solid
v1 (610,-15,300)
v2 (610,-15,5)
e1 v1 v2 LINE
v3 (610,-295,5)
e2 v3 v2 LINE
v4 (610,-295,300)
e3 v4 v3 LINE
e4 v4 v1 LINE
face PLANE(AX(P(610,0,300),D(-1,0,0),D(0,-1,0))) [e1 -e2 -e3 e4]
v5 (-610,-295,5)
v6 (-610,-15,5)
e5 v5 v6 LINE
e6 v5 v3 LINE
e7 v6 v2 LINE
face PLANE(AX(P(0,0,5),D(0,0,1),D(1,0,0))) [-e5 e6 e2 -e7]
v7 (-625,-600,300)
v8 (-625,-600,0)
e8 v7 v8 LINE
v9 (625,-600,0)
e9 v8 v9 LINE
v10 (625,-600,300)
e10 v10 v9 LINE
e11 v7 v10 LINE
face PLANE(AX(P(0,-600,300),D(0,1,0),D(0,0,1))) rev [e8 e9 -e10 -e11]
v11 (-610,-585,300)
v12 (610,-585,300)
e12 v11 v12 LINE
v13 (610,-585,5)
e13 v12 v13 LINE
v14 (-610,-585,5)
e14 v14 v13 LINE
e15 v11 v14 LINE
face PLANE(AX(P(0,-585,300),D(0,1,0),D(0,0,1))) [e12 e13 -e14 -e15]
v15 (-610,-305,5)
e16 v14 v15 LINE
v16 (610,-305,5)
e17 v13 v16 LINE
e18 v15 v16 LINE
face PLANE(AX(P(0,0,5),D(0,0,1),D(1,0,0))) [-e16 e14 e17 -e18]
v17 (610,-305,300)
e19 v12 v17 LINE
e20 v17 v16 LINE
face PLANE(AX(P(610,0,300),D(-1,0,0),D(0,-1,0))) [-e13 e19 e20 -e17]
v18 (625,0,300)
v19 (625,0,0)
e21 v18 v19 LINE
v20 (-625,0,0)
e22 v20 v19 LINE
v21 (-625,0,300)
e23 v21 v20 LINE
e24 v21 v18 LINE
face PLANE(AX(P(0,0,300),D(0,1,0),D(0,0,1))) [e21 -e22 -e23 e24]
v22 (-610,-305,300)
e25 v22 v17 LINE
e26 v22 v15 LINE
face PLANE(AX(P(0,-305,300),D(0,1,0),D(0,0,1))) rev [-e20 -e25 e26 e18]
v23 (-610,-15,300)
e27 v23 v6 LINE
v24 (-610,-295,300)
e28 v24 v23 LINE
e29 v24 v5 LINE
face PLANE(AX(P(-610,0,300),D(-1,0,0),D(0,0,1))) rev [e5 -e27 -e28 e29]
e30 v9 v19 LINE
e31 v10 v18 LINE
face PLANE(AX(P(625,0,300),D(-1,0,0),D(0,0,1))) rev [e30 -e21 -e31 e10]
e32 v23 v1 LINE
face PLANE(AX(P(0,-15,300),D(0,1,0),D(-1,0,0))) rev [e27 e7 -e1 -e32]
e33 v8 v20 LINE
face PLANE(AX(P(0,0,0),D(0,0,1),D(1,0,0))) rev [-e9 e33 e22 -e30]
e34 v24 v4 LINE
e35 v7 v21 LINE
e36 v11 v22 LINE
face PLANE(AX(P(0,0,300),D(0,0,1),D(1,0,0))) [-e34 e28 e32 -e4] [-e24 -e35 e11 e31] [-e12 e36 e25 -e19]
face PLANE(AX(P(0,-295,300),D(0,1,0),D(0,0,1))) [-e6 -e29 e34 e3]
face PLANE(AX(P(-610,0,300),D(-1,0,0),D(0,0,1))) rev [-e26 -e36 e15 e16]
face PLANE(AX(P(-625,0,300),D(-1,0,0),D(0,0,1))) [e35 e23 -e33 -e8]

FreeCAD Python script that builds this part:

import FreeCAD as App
import Part
import Sketcher
from FreeCAD import Vector
Q = App.Units.Quantity


def add_polygon(sketch, points):
    """Adds a closed chain of lines whose ends are joined by coincident constraints."""
    first, n = sketch.GeometryCount, len(points)
    for a, b in zip(points, points[1:] + points[:1]):
        sketch.addGeometry(Part.LineSegment(App.Vector(*a, 0), App.Vector(*b, 0)), False)
    for i in range(n):
        sketch.addConstraint(Sketcher.Constraint("Coincident", first + i, 2, first + (i + 1) % n, 1))

doc = App.newDocument("Part")
params = doc.addObject("Spreadsheet::Sheet", "Params")
for row, (alias, value) in enumerate([
    ("sketch1_width", "1250 mm"),
    ("sketch1_width2", "1220 mm"),
    ("sketch1_height", "600 mm"),
    ("sketch1_height2", "280 mm"),
    ("pad1_length", "300 mm"),
    ("sketch2_width", "1250 mm"),
    ("sketch2_height", "600 mm"),
    ("pad2_length", "5 mm"),
], start=1):
    params.set(f"A{row}", alias)
    params.set(f"B{row}", "=" + value)
    params.setAlias(f"B{row}", alias)

body = doc.addObject("PartDesign::Body", "Body")

# Sketch on XY plane
sketch1 = body.newObject("Sketcher::SketchObject", "Sketch")
sketch1.AttachmentSupport = (doc.getObject("XY_Plane"), [""])
sketch1.MapMode = "FlatFace"
add_polygon(sketch1, [(-625, 0), (-625, -600), (625, -600), (625, 0)])  # lines 0-3
add_polygon(sketch1, [(610, -585), (-610, -585), (-610, -305), (610, -305)])  # lines 4-7
add_polygon(sketch1, [(610, -15), (610, -295), (-610, -295), (-610, -15)])  # lines 8-11
sketch1.addConstraint(Sketcher.Constraint("Vertical", 0))
sketch1.addConstraint(Sketcher.Constraint("Horizontal", 1))
sketch1.addConstraint(Sketcher.Constraint("Vertical", 2))
sketch1.addConstraint(Sketcher.Constraint("Horizontal", 3))
sketch1.addConstraint(Sketcher.Constraint("Horizontal", 4))
sketch1.addConstraint(Sketcher.Constraint("Vertical", 5))
sketch1.addConstraint(Sketcher.Constraint("Horizontal", 6))
sketch1.addConstraint(Sketcher.Constraint("Vertical", 7))
sketch1.addConstraint(Sketcher.Constraint("Vertical", 8))
sketch1.addConstraint(Sketcher.Constraint("Horizontal", 9))
sketch1.addConstraint(Sketcher.Constraint("Vertical", 10))
sketch1.addConstraint(Sketcher.Constraint("Horizontal", 11))
sketch1.addConstraint(Sketcher.Constraint("Symmetric", 2, 2, 3, 2, -1, 1))
sketch1.addConstraint(Sketcher.Constraint("Vertical", 7, 2, 8, 2))
sketch1.addConstraint(Sketcher.Constraint("Vertical", 5, 2, 9, 2))
sketch1.addConstraint(Sketcher.Constraint("Equal", 7, 8))
sketch1.addConstraint(Sketcher.Constraint("DistanceX", 1, 1, 1, 2, Q("1250 mm")))
sketch1.addConstraint(Sketcher.Constraint("DistanceX", 4, 2, 4, 1, Q("1220 mm")))
sketch1.addConstraint(Sketcher.Constraint("DistanceY", 0, 2, 0, 1, Q("600 mm")))
sketch1.addConstraint(Sketcher.Constraint("DistanceY", 5, 1, 5, 2, Q("280 mm")))
sketch1.addConstraint(Sketcher.Constraint("DistanceX", 4, 2, -1, 1, Q("610 mm")))
sketch1.addConstraint(Sketcher.Constraint("DistanceY", 4, 2, -1, 1, Q("585 mm")))
sketch1.addConstraint(Sketcher.Constraint("DistanceY", 8, 2, -1, 1, Q("295 mm")))
sketch1.setExpression("Constraints[28]", "Params.sketch1_width")
sketch1.setExpression("Constraints[29]", "Params.sketch1_width2")
sketch1.setExpression("Constraints[30]", "Params.sketch1_height")
sketch1.setExpression("Constraints[31]", "Params.sketch1_height2")
pad1 = body.newObject("PartDesign::Pad", "Pad")
pad1.Profile = sketch1
pad1.setExpression("Length", "Params.pad1_length")

# Sketch on XY plane
sketch2 = body.newObject("Sketcher::SketchObject", "Sketch001")
sketch2.AttachmentSupport = (doc.getObject("XY_Plane"), [""])
sketch2.MapMode = "FlatFace"
add_polygon(sketch2, [(625, 0), (625, -600), (-625, -600), (-625, 0)])  # lines 0-3
sketch2.addConstraint(Sketcher.Constraint("Vertical", 0))
sketch2.addConstraint(Sketcher.Constraint("Horizontal", 1))
sketch2.addConstraint(Sketcher.Constraint("Vertical", 2))
sketch2.addConstraint(Sketcher.Constraint("Horizontal", 3))
sketch2.addConstraint(Sketcher.Constraint("Symmetric", 2, 2, 3, 2, -1, 1))
sketch2.addConstraint(Sketcher.Constraint("DistanceX", 1, 2, 1, 1, Q("1250 mm")))
sketch2.addConstraint(Sketcher.Constraint("DistanceY", 0, 2, 0, 1, Q("600 mm")))
sketch2.setExpression("Constraints[9]", "Params.sketch2_width")
sketch2.setExpression("Constraints[10]", "Params.sketch2_height")
pad2 = body.newObject("PartDesign::Pad", "Pad001")
pad2.Profile = sketch2
pad2.setExpression("Length", "Params.pad2_length")

doc.recompute()
